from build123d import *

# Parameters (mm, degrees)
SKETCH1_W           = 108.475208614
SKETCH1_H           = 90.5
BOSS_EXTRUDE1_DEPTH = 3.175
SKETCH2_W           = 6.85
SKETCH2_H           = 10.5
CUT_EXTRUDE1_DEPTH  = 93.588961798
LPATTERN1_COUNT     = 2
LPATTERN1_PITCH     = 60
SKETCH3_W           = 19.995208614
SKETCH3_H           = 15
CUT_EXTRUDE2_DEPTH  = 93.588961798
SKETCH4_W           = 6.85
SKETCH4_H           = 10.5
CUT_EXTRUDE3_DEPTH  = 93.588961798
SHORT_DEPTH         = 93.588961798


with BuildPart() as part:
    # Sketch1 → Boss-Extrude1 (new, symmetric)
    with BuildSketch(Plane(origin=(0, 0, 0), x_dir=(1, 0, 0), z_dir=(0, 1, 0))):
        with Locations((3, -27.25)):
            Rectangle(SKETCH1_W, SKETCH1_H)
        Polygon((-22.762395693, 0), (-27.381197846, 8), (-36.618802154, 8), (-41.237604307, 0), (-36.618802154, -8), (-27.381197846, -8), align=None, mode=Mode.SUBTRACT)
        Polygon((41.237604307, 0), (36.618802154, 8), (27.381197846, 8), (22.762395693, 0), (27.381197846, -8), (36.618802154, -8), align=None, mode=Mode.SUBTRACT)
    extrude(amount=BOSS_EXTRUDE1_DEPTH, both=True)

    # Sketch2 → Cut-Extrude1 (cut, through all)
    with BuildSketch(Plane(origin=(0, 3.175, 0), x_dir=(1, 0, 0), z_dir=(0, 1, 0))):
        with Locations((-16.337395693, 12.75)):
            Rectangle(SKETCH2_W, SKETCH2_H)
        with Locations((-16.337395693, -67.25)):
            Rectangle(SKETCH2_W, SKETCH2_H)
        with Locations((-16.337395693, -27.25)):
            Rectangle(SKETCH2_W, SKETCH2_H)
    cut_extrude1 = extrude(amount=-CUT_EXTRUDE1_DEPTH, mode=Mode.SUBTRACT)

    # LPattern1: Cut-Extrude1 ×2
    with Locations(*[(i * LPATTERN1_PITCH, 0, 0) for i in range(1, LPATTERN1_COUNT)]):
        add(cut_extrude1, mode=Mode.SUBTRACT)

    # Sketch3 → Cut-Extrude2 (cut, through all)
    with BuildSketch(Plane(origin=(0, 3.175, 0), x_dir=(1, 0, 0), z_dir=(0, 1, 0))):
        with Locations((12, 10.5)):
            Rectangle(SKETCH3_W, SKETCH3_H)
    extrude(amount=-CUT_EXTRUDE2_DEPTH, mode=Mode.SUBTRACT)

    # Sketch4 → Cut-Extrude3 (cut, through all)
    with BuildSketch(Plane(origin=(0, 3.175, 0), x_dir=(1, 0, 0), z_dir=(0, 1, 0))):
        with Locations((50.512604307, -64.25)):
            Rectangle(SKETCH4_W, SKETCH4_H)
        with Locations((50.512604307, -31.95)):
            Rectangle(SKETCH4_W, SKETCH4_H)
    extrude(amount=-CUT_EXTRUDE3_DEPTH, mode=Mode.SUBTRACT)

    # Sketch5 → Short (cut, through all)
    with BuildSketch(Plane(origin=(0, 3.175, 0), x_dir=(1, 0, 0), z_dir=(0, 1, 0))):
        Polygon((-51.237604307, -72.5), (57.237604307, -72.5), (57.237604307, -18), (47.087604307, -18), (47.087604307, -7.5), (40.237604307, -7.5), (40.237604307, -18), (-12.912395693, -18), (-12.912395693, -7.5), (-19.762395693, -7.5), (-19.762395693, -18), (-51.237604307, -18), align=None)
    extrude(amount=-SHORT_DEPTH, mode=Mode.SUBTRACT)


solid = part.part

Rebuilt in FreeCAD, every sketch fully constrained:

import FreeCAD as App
import Part
import Sketcher
Q = App.Units.Quantity


def add_polygon(sketch, points):
    """Adds a closed chain of lines whose ends are joined by coincident constraints."""
    first, n = sketch.GeometryCount, len(points)
    for a, b in zip(points, points[1:] + points[:1]):
        sketch.addGeometry(Part.LineSegment(App.Vector(*a, 0), App.Vector(*b, 0)), False)
    for i in range(n):
        sketch.addConstraint(Sketcher.Constraint("Coincident", first + i, 2, first + (i + 1) % n, 1))

doc = App.newDocument("Part")
body = doc.addObject("PartDesign::Body", "Body")

# Sketch on XZ plane
sketch1 = doc.addObject("Sketcher::SketchObject", "Sketch")
body.addObject(sketch1)
sketch1.AttachmentSupport = (doc.XZ_Plane, [""])
sketch1.MapMode = "FlatFace"
add_polygon(sketch1, [(-51, -18), (-51, 72), (57, 72), (57, -18)])  # lines 0-3
add_polygon(sketch1, [(-27, -8), (-23, 0), (-27, 8), (-37, 8), (-41, 0), (-37, -8)])  # lines 4-9
add_polygon(sketch1, [(37, -8), (41, 0), (37, 8), (27, 8), (23, 0), (27, -8)])  # lines 10-15
sketch1.addConstraint(Sketcher.Constraint("Vertical", 0))
sketch1.addConstraint(Sketcher.Constraint("Horizontal", 1))
sketch1.addConstraint(Sketcher.Constraint("Vertical", 2))
sketch1.addConstraint(Sketcher.Constraint("Horizontal", 3))
sketch1.addConstraint(Sketcher.Constraint("Horizontal", 6))
sketch1.addConstraint(Sketcher.Constraint("Horizontal", 9))
sketch1.addConstraint(Sketcher.Constraint("Horizontal", 12))
sketch1.addConstraint(Sketcher.Constraint("Horizontal", 15))
sketch1.addConstraint(Sketcher.Constraint("Symmetric", 7, 2, 10, 2, -1, 1))
sketch1.addConstraint(Sketcher.Constraint("Symmetric", 8, 2, 11, 2, -1, 1))
sketch1.addConstraint(Sketcher.Constraint("Symmetric", 4, 2, 13, 2, -1, 1))
sketch1.addConstraint(Sketcher.Constraint("Symmetric", 5, 2, 14, 2, -1, 1))
sketch1.addConstraint(Sketcher.Constraint("Symmetric", 6, 2, 11, 2, -2))
sketch1.addConstraint(Sketcher.Constraint("PointOnObject", 4, 2, -1))
sketch1.addConstraint(Sketcher.Constraint("PointOnObject", 7, 2, -1))
sketch1.addConstraint(Sketcher.Constraint("Parallel", 4, 7))
sketch1.addConstraint(Sketcher.Constraint("Parallel", 5, 8))
sketch1.addConstraint(Sketcher.Constraint("Parallel", 7, 10))
sketch1.addConstraint(Sketcher.Constraint("Parallel", 10, 13))
sketch1.addConstraint(Sketcher.Constraint("Angle", 4, Q("60 deg")))
sketch1.addConstraint(Sketcher.Constraint("DistanceY", 0, 1, 0, 2, Q("90.5 mm")))
sketch1.addConstraint(Sketcher.Constraint("DistanceY", 2, 2, -1, 1, Q("18 mm")))
sketch1.addConstraint(Sketcher.Constraint("DistanceY", -1, 1, 5, 2, Q("8 mm")))
sketch1.addConstraint(Sketcher.Constraint("DistanceX", 4, 2, 2, 2, Q("80 mm")))
sketch1.addConstraint(Sketcher.Constraint("DistanceX", 3, 2, 7, 2, Q("10 mm")))
sketch1.addConstraint(Sketcher.Constraint("DistanceX", 10, 2, 2, 2, Q("16 mm")))
sketch1.addConstraint(Sketcher.Constraint("DistanceX", 1, 1, 1, 2, Q("108.475209 mm")))
pad1 = doc.addObject("PartDesign::Pad", "Pad")
body.addObject(pad1)
pad1.Profile = sketch1
pad1.Length = 6.35
pad1.Midplane = True

# Sketch on XZ plane
sketch2 = doc.addObject("Sketcher::SketchObject", "Sketch001")
body.addObject(sketch2)
sketch2.AttachmentSupport = (doc.XZ_Plane, [""])
sketch2.MapMode = "FlatFace"
sketch2.AttachmentOffset = App.Placement(App.Vector(0, 0, -3.175), App.Rotation())
add_polygon(sketch2, [(-20, -18), (-20, -8), (-13, -8), (-13, -18)])  # lines 0-3
add_polygon(sketch2, [(-20, 62), (-20, 72), (-13, 72), (-13, 62)])  # lines 4-7
add_polygon(sketch2, [(-20, 22), (-20, 32), (-13, 32), (-13, 22)])  # lines 8-11
sketch2.addConstraint(Sketcher.Constraint("Vertical", 0))
sketch2.addConstraint(Sketcher.Constraint("Horizontal", 1))
sketch2.addConstraint(Sketcher.Constraint("Vertical", 2))
sketch2.addConstraint(Sketcher.Constraint("Horizontal", 3))
sketch2.addConstraint(Sketcher.Constraint("Vertical", 4))
sketch2.addConstraint(Sketcher.Constraint("Horizontal", 5))
sketch2.addConstraint(Sketcher.Constraint("Vertical", 6))
sketch2.addConstraint(Sketcher.Constraint("Horizontal", 7))
sketch2.addConstraint(Sketcher.Constraint("Vertical", 8))
sketch2.addConstraint(Sketcher.Constraint("Horizontal", 9))
sketch2.addConstraint(Sketcher.Constraint("Vertical", 10))
sketch2.addConstraint(Sketcher.Constraint("Horizontal", 11))
sketch2.addConstraint(Sketcher.Constraint("Vertical", 3, 2, 4, 2))
sketch2.addConstraint(Sketcher.Constraint("Vertical", 2, 2, 5, 2))
sketch2.addConstraint(Sketcher.Constraint("Vertical", 7, 2, 8, 2))
sketch2.addConstraint(Sketcher.Constraint("Vertical", 6, 2, 9, 2))
sketch2.addConstraint(Sketcher.Constraint("Equal", 2, 4))
sketch2.addConstraint(Sketcher.Constraint("Equal", 6, 8))
sketch2.addConstraint(Sketcher.Constraint("DistanceY", 0, 1, 0, 2, Q("10.5 mm")))
sketch2.addConstraint(Sketcher.Constraint("DistanceY", 2, 2, -1, 1, Q("18 mm")))
sketch2.addConstraint(Sketcher.Constraint("DistanceY", -1, 1, 6, 2, Q("62 mm")))
sketch2.addConstraint(Sketcher.Constraint("DistanceY", -1, 1, 10, 2, Q("22 mm")))
sketch2.addConstraint(Sketcher.Constraint("DistanceX", 1, 1, 1, 2, Q("6.85 mm")))
sketch2.addConstraint(Sketcher.Constraint("DistanceX", 0, 2, -1, 1, Q("19.762396 mm")))
pocket1 = doc.addObject("PartDesign::Pocket", "Pocket")
body.addObject(pocket1)
pocket1.Profile = sketch2
pocket1.Type = "ThroughAll"
pocket1.Reversed = True
doc.recompute()

linearpattern = doc.addObject("PartDesign::LinearPattern", "LinearPattern")
body.addObject(linearpattern)
linearpattern.Originals = [pocket1]
linearpattern.Direction = (doc.X_Axis, [""])
linearpattern.Mode = "offset"
linearpattern.Offset = 60
linearpattern.Occurrences = 2
body.Tip = linearpattern

# Sketch on XZ plane
sketch3 = doc.addObject("Sketcher::SketchObject", "Sketch002")
body.addObject(sketch3)
sketch3.AttachmentSupport = (doc.XZ_Plane, [""])
sketch3.MapMode = "FlatFace"
sketch3.AttachmentOffset = App.Placement(App.Vector(0, 0, -3.175), App.Rotation())
add_polygon(sketch3, [(2, -18), (2, -3), (22, -3), (22, -18)])  # lines 0-3
sketch3.addConstraint(Sketcher.Constraint("Vertical", 0))
sketch3.addConstraint(Sketcher.Constraint("Horizontal", 1))
sketch3.addConstraint(Sketcher.Constraint("Vertical", 2))
sketch3.addConstraint(Sketcher.Constraint("Horizontal", 3))
sketch3.addConstraint(Sketcher.Constraint("DistanceY", 0, 1, 0, 2, Q("15 mm")))
sketch3.addConstraint(Sketcher.Constraint("DistanceY", 0, 2, -1, 1, Q("3 mm")))
sketch3.addConstraint(Sketcher.Constraint("DistanceX", 1, 1, 1, 2, Q("19.995209 mm")))
sketch3.addConstraint(Sketcher.Constraint("DistanceX", -1, 1, 0, 2, Q("2.002396 mm")))
pocket2 = doc.addObject("PartDesign::Pocket", "Pocket001")
body.addObject(pocket2)
pocket2.Profile = sketch3
pocket2.Type = "ThroughAll"
pocket2.Reversed = True

# Sketch on XZ plane
sketch4 = doc.addObject("Sketcher::SketchObject", "Sketch003")
body.addObject(sketch4)
sketch4.AttachmentSupport = (doc.XZ_Plane, [""])
sketch4.MapMode = "FlatFace"
sketch4.AttachmentOffset = App.Placement(App.Vector(0, 0, -3.175), App.Rotation())
add_polygon(sketch4, [(47, 59), (47, 70), (54, 70), (54, 59)])  # lines 0-3
add_polygon(sketch4, [(47, 27), (47, 37), (54, 37), (54, 27)])  # lines 4-7
sketch4.addConstraint(Sketcher.Constraint("Vertical", 0))
sketch4.addConstraint(Sketcher.Constraint("Horizontal", 1))
sketch4.addConstraint(Sketcher.Constraint("Vertical", 2))
sketch4.addConstraint(Sketcher.Constraint("Horizontal", 3))
sketch4.addConstraint(Sketcher.Constraint("Vertical", 4))
sketch4.addConstraint(Sketcher.Constraint("Horizontal", 5))
sketch4.addConstraint(Sketcher.Constraint("Vertical", 6))
sketch4.addConstraint(Sketcher.Constraint("Horizontal", 7))
sketch4.addConstraint(Sketcher.Constraint("Vertical", 3, 2, 4, 2))
sketch4.addConstraint(Sketcher.Constraint("Vertical", 2, 2, 5, 2))
sketch4.addConstraint(Sketcher.Constraint("Equal", 2, 4))
sketch4.addConstraint(Sketcher.Constraint("DistanceY", 0, 1, 0, 2, Q("10.5 mm")))
sketch4.addConstraint(Sketcher.Constraint("DistanceY", -1, 1, 2, 2, Q("59 mm")))
sketch4.addConstraint(Sketcher.Constraint("DistanceX", 1, 1, 1, 2, Q("6.85 mm")))
sketch4.addConstraint(Sketcher.Constraint("DistanceY", -1, 1, 4, 2, Q("37.2 mm")))
sketch4.addConstraint(Sketcher.Constraint("DistanceX", -1, 1, 0, 2, Q("47.087604 mm")))
pocket3 = doc.addObject("PartDesign::Pocket", "Pocket002")
body.addObject(pocket3)
pocket3.Profile = sketch4
pocket3.Type = "ThroughAll"
pocket3.Reversed = True

# Sketch on XZ plane
sketch5 = doc.addObject("Sketcher::SketchObject", "Sketch004")
body.addObject(sketch5)
sketch5.AttachmentSupport = (doc.XZ_Plane, [""])
sketch5.MapMode = "FlatFace"
sketch5.AttachmentOffset = App.Placement(App.Vector(0, 0, -3.175), App.Rotation())
add_polygon(sketch5, [(-51, 72), (57, 72), (57, 18), (47, 18), (47, 8), (40, 8), (40, 18), (-13, 18), (-13, 8), (-20, 8), (-20, 18), (-51, 18)])  # lines 0-11
sketch5.addConstraint(Sketcher.Constraint("Horizontal", 0))
sketch5.addConstraint(Sketcher.Constraint("Vertical", 1))
sketch5.addConstraint(Sketcher.Constraint("Horizontal", 2))
sketch5.addConstraint(Sketcher.Constraint("Vertical", 3))
sketch5.addConstraint(Sketcher.Constraint("Horizontal", 4))
sketch5.addConstraint(Sketcher.Constraint("Vertical", 5))
sketch5.addConstraint(Sketcher.Constraint("Horizontal", 6))
sketch5.addConstraint(Sketcher.Constraint("Vertical", 7))
sketch5.addConstraint(Sketcher.Constraint("Horizontal", 8))
sketch5.addConstraint(Sketcher.Constraint("Vertical", 9))
sketch5.addConstraint(Sketcher.Constraint("Horizontal", 10))
sketch5.addConstraint(Sketcher.Constraint("Vertical", 11))
sketch5.addConstraint(Sketcher.Constraint("Horizontal", 2, 2, 5, 2))
sketch5.addConstraint(Sketcher.Constraint("Horizontal", 4, 2, 7, 2))
sketch5.addConstraint(Sketcher.Constraint("Horizontal", 6, 2, 9, 2))
sketch5.addConstraint(Sketcher.Constraint("Equal", 4, 8))
sketch5.addConstraint(Sketcher.Constraint("DistanceY", 1, 2, 1, 1, Q("54.5 mm")))
sketch5.addConstraint(Sketcher.Constraint("DistanceY", 3, 2, 3, 1, Q("10.5 mm")))
sketch5.addConstraint(Sketcher.Constraint("DistanceY", -1, 1, 1, 2, Q("18 mm")))
sketch5.addConstraint(Sketcher.Constraint("DistanceX", 4, 2, 1, 2, Q("17 mm")))
sketch5.addConstraint(Sketcher.Constraint("DistanceX", 6, 2, 2, 2, Q("60 mm")))
sketch5.addConstraint(Sketcher.Constraint("DistanceX", 2, 2, 2, 1, Q("10.15 mm")))
sketch5.addConstraint(Sketcher.Constraint("DistanceX", 0, 1, 0, 2, Q("108.475209 mm")))
sketch5.addConstraint(Sketcher.Constraint("DistanceX", -1, 1, 0, 2, Q("57.237604 mm")))
pocket4 = doc.addObject("PartDesign::Pocket", "Pocket003")
body.addObject(pocket4)
pocket4.Profile = sketch5
pocket4.Type = "ThroughAll"
pocket4.Reversed = True

doc.recompute()
